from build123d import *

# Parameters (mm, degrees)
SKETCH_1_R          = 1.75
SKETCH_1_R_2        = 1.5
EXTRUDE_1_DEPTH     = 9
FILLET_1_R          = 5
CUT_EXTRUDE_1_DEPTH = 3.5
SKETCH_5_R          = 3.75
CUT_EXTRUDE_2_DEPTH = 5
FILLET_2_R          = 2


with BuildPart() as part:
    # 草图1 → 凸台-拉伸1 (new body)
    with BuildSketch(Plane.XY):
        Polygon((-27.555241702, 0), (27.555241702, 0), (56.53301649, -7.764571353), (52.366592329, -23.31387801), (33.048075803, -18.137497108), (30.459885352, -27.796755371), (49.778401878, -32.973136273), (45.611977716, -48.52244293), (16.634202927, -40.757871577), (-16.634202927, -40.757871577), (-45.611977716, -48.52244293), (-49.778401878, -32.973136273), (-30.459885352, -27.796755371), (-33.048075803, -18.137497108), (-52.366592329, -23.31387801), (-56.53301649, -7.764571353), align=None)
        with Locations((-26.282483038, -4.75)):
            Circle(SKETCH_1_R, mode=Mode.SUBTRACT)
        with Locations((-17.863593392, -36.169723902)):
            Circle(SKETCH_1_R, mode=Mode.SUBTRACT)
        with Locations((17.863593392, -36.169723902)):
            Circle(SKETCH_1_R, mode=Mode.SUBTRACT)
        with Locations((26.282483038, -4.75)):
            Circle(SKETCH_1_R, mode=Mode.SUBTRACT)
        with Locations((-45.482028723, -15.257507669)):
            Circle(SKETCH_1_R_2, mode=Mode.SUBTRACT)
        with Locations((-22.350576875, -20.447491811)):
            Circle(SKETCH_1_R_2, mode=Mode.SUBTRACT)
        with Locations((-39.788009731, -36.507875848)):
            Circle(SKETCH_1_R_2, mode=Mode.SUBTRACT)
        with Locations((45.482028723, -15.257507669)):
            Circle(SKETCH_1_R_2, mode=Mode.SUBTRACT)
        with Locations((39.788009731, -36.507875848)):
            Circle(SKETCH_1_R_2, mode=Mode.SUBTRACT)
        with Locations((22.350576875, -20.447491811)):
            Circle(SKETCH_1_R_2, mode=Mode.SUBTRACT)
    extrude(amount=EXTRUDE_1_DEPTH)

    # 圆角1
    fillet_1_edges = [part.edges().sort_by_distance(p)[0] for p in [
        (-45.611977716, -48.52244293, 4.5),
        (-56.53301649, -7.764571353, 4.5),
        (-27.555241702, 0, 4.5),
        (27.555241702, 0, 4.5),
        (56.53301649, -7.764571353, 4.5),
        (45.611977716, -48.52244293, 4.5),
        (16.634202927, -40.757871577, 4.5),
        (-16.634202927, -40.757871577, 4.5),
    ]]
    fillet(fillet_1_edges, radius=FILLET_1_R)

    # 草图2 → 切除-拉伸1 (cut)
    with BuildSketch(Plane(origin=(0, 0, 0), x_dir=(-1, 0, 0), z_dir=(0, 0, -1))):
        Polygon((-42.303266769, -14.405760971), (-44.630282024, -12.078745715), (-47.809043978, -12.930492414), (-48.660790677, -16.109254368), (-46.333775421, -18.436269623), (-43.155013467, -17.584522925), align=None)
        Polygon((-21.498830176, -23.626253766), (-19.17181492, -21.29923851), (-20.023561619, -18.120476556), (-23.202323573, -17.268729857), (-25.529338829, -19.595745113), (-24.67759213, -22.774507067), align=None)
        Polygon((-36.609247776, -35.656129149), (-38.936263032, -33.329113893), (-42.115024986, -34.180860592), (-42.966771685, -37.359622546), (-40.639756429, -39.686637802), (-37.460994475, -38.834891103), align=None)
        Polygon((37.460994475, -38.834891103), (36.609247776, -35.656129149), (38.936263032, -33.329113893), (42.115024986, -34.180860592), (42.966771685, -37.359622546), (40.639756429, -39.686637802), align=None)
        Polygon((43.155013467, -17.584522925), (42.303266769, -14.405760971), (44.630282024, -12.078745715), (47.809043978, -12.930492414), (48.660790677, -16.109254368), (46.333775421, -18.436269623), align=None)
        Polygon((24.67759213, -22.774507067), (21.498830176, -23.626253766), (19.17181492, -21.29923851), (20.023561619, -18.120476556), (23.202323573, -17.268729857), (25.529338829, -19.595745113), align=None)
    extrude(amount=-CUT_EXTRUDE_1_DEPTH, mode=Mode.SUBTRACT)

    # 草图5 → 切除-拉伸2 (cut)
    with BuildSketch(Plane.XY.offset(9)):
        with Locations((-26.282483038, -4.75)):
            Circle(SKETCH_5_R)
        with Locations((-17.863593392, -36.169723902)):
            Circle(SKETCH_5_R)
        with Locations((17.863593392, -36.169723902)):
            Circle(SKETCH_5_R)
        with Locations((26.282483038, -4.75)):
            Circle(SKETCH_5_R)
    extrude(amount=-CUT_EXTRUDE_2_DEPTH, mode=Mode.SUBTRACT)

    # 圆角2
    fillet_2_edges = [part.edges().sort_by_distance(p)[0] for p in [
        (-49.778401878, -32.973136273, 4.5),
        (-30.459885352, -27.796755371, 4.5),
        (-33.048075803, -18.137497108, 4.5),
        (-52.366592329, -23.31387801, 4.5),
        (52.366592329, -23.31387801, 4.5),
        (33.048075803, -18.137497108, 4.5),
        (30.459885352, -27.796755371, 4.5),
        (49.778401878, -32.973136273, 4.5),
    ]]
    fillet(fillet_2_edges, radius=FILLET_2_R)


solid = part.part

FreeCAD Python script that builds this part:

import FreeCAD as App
import Part
import Sketcher
Q = App.Units.Quantity


def edges_at(feature, points):
    """Names of the edges that pass closest to the given points."""
    edges = feature.Shape.Edges
    near = lambda p: min(range(len(edges)), key=lambda i: edges[i].distToShape(Part.Vertex(*p))[0])
    return sorted({f"Edge{near(p) + 1}" for p in points})

doc = App.newDocument("Part")
body = doc.addObject("PartDesign::Body", "Body")

# Sketch on XY plane
sketch1 = body.newObject("Sketcher::SketchObject", "Sketch")
sketch1.AttachmentSupport = (doc.getObject("XY_Plane"), [""])
sketch1.MapMode = "FlatFace"
sketch1.addGeometry(Part.LineSegment(App.Vector(27.6, 0, 0), App.Vector(-27.6, 0, 0)), False)
sketch1.addGeometry(Part.LineSegment(App.Vector(-27.6, 0, 0), App.Vector(-56.5, -7.8, 0)), False)
sketch1.addGeometry(Part.LineSegment(App.Vector(-56.5, -7.8, 0), App.Vector(-52.4, -23.3, 0)), False)
sketch1.addGeometry(Part.LineSegment(App.Vector(-52.4, -23.3, 0), App.Vector(-33, -18.1, 0)), False)
sketch1.addGeometry(Part.LineSegment(App.Vector(-33, -18.1, 0), App.Vector(-30.5, -27.8, 0)), False)
sketch1.addGeometry(Part.LineSegment(App.Vector(-30.5, -27.8, 0), App.Vector(-49.8, -33, 0)), False)
sketch1.addGeometry(Part.LineSegment(App.Vector(-49.8, -33, 0), App.Vector(-45.6, -48.5, 0)), False)
sketch1.addGeometry(Part.LineSegment(App.Vector(-45.6, -48.5, 0), App.Vector(-16.6, -40.8, 0)), False)
sketch1.addGeometry(Part.LineSegment(App.Vector(-16.6, -40.8, 0), App.Vector(16.6, -40.8, 0)), False)
sketch1.addGeometry(Part.LineSegment(App.Vector(16.6, -40.8, 0), App.Vector(45.6, -48.5, 0)), False)
sketch1.addGeometry(Part.LineSegment(App.Vector(45.6, -48.5, 0), App.Vector(49.8, -33, 0)), False)
sketch1.addGeometry(Part.LineSegment(App.Vector(49.8, -33, 0), App.Vector(30.5, -27.8, 0)), False)
sketch1.addGeometry(Part.LineSegment(App.Vector(30.5, -27.8, 0), App.Vector(33, -18.1, 0)), False)
sketch1.addGeometry(Part.LineSegment(App.Vector(33, -18.1, 0), App.Vector(52.4, -23.3, 0)), False)
sketch1.addGeometry(Part.LineSegment(App.Vector(52.4, -23.3, 0), App.Vector(56.5, -7.8, 0)), False)
sketch1.addGeometry(Part.LineSegment(App.Vector(56.5, -7.8, 0), App.Vector(27.6, 0, 0)), False)
sketch1.addGeometry(Part.Circle(App.Vector(39.8, -36.5, 0), App.Vector(0, 0, 1), 1.5), False)
sketch1.addGeometry(Part.Circle(App.Vector(17.9, -36.2, 0), App.Vector(0, 0, 1), 1.8), False)
sketch1.addGeometry(Part.Circle(App.Vector(-17.9, -36.2, 0), App.Vector(0, 0, 1), 1.8), False)
sketch1.addGeometry(Part.Circle(App.Vector(-39.8, -36.5, 0), App.Vector(0, 0, 1), 1.5), False)
sketch1.addGeometry(Part.Circle(App.Vector(45.5, -15.3, 0), App.Vector(0, 0, 1), 1.5), False)
sketch1.addGeometry(Part.Circle(App.Vector(22.4, -20.4, 0), App.Vector(0, 0, 1), 1.5), False)
sketch1.addGeometry(Part.Circle(App.Vector(26.3, -4.8, 0), App.Vector(0, 0, 1), 1.8), False)
sketch1.addGeometry(Part.Circle(App.Vector(-22.4, -20.4, 0), App.Vector(0, 0, 1), 1.5), False)
sketch1.addGeometry(Part.Circle(App.Vector(-45.5, -15.3, 0), App.Vector(0, 0, 1), 1.5), False)
sketch1.addGeometry(Part.Circle(App.Vector(-26.3, -4.8, 0), App.Vector(0, 0, 1), 1.8), False)
sketch1.addConstraint(Sketcher.Constraint("Coincident", 0, 2, 1, 1))
sketch1.addConstraint(Sketcher.Constraint("Coincident", 1, 2, 2, 1))
sketch1.addConstraint(Sketcher.Constraint("Coincident", 2, 2, 3, 1))
sketch1.addConstraint(Sketcher.Constraint("Coincident", 3, 2, 4, 1))
sketch1.addConstraint(Sketcher.Constraint("Coincident", 4, 2, 5, 1))
sketch1.addConstraint(Sketcher.Constraint("Coincident", 5, 2, 6, 1))
sketch1.addConstraint(Sketcher.Constraint("Coincident", 6, 2, 7, 1))
sketch1.addConstraint(Sketcher.Constraint("Coincident", 7, 2, 8, 1))
sketch1.addConstraint(Sketcher.Constraint("Coincident", 8, 2, 9, 1))
sketch1.addConstraint(Sketcher.Constraint("Coincident", 9, 2, 10, 1))
sketch1.addConstraint(Sketcher.Constraint("Coincident", 10, 2, 11, 1))
sketch1.addConstraint(Sketcher.Constraint("Coincident", 11, 2, 12, 1))
sketch1.addConstraint(Sketcher.Constraint("Coincident", 12, 2, 13, 1))
sketch1.addConstraint(Sketcher.Constraint("Coincident", 13, 2, 14, 1))
sketch1.addConstraint(Sketcher.Constraint("Coincident", 14, 2, 15, 1))
sketch1.addConstraint(Sketcher.Constraint("Coincident", 15, 2, 0, 1))
sketch1.addConstraint(Sketcher.Constraint("Horizontal", 0))
sketch1.addConstraint(Sketcher.Constraint("Horizontal", 8))
sketch1.addConstraint(Sketcher.Constraint("Equal", 17, 18))
sketch1.addConstraint(Sketcher.Constraint("Equal", 16, 19))
sketch1.addConstraint(Sketcher.Constraint("Equal", 19, 20))
sketch1.addConstraint(Sketcher.Constraint("Equal", 20, 21))
sketch1.addConstraint(Sketcher.Constraint("Equal", 18, 22))
sketch1.addConstraint(Sketcher.Constraint("Equal", 21, 23))
sketch1.addConstraint(Sketcher.Constraint("Equal", 23, 24))
sketch1.addConstraint(Sketcher.Constraint("Equal", 22, 25))
sketch1.addConstraint(Sketcher.Constraint("Symmetric", 0, 2, 15, 2, -1, 1))
sketch1.addConstraint(Sketcher.Constraint("Symmetric", 17, 3, 18, 3, -2))
sketch1.addConstraint(Sketcher.Constraint("Symmetric", 16, 3, 19, 3, -2))
sketch1.addConstraint(Sketcher.Constraint("Symmetric", 21, 3, 23, 3, -2))
sketch1.addConstraint(Sketcher.Constraint("Symmetric", 20, 3, 24, 3, -2))
sketch1.addConstraint(Sketcher.Constraint("Symmetric", 22, 3, 25, 3, -2))
sketch1.addConstraint(Sketcher.Constraint("Symmetric", 6, 2, 9, 2, -2))
sketch1.addConstraint(Sketcher.Constraint("Symmetric", 5, 2, 10, 2, -2))
sketch1.addConstraint(Sketcher.Constraint("Symmetric", 4, 2, 11, 2, -2))
sketch1.addConstraint(Sketcher.Constraint("Symmetric", 3, 2, 12, 2, -2))
sketch1.addConstraint(Sketcher.Constraint("Symmetric", 2, 2, 13, 2, -2))
sketch1.addConstraint(Sketcher.Constraint("Symmetric", 1, 2, 14, 2, -2))
sketch1.addConstraint(Sketcher.Constraint("Perpendicular", 1, 2))
sketch1.addConstraint(Sketcher.Constraint("Perpendicular", 2, 3))
sketch1.addConstraint(Sketcher.Constraint("Perpendicular", 3, 4))
sketch1.addConstraint(Sketcher.Constraint("Perpendicular", 4, 5))
sketch1.addConstraint(Sketcher.Constraint("Perpendicular", 5, 6))
sketch1.addConstraint(Sketcher.Constraint("Perpendicular", 6, 7))
sketch1.addConstraint(Sketcher.Constraint("Perpendicular", 9, 10))
sketch1.addConstraint(Sketcher.Constraint("Equal", 3, 5))
sketch1.addConstraint(Sketcher.Constraint("Equal", 2, 6))
sketch1.addConstraint(Sketcher.Constraint("Equal", 1, 7))
sketch1.addConstraint(Sketcher.Constraint("Diameter", 16, Q("3 mm")))
sketch1.addConstraint(Sketcher.Constraint("Diameter", 17, Q("3.5 mm")))
sketch1.addConstraint(Sketcher.Constraint("Angle", 1, Q("-165 deg")))
sketch1.addConstraint(Sketcher.Constraint("Distance", 1, Q("30 mm")))
sketch1.addConstraint(Sketcher.Constraint("Distance", 3, Q("20 mm")))
sketch1.addConstraint(Sketcher.Constraint("Distance", 4, Q("10 mm")))
sketch1.addConstraint(Sketcher.Constraint("DistanceY", 22, 3, -1, 1, Q("4.75 mm")))
sketch1.addConstraint(Sketcher.Constraint("DistanceX", 5, 2, -1, 1, Q("49.778402 mm")))
sketch1.addConstraint(Sketcher.Constraint("DistanceX", 3, 2, 23, 3, Q("10.697499 mm")))
sketch1.addConstraint(Sketcher.Constraint("DistanceX", 21, 3, 9, 2, Q("23.261401 mm")))
sketch1.addConstraint(Sketcher.Constraint("DistanceX", -1, 1, 16, 3, Q("39.78801 mm")))
sketch1.addConstraint(Sketcher.Constraint("DistanceX", -1, 1, 20, 3, Q("45.482029 mm")))
sketch1.addConstraint(Sketcher.Constraint("DistanceY", 21, 3, -1, 1, Q("20.447492 mm")))
sketch1.addConstraint(Sketcher.Constraint("DistanceY", 16, 3, 17, 3, Q("0.338152 mm")))
sketch1.addConstraint(Sketcher.Constraint("DistanceY", 16, 3, 20, 3, Q("21.250368 mm")))
sketch1.addConstraint(Sketcher.Constraint("DistanceX", 18, 3, 21, 3, Q("40.21417 mm")))
sketch1.addConstraint(Sketcher.Constraint("DistanceX", 17, 3, 22, 3, Q("8.41889 mm")))
sketch1.addConstraint(Sketcher.Constraint("DistanceY", 2, 2, 24, 3, Q("8.05637 mm")))
pad1 = body.newObject("PartDesign::Pad", "Pad")
pad1.Profile = sketch1
pad1.Length = 9
doc.recompute()

fillet = body.newObject("PartDesign::Fillet", "Fillet")
fillet.Base = (pad1, edges_at(pad1, [
    (-45.612, -48.522, 4.5),
    (-56.533, -7.765, 4.5),
    (-27.555, 0, 4.5),
    (27.555, 0, 4.5),
    (56.533, -7.765, 4.5),
    (45.612, -48.522, 4.5),
    (16.634, -40.758, 4.5),
    (-16.634, -40.758, 4.5),
]))
fillet.Radius = 5

# Sketch on XY plane
sketch2 = body.newObject("Sketcher::SketchObject", "Sketch001")
sketch2.AttachmentSupport = (doc.getObject("XY_Plane"), [""])
sketch2.MapMode = "FlatFace"
sketch2.addGeometry(Part.LineSegment(App.Vector(42.3, -14.4, 0), App.Vector(44.6, -12.1, 0)), False)
sketch2.addGeometry(Part.LineSegment(App.Vector(44.6, -12.1, 0), App.Vector(47.8, -12.9, 0)), False)
sketch2.addGeometry(Part.LineSegment(App.Vector(47.8, -12.9, 0), App.Vector(48.7, -16.1, 0)), False)
sketch2.addGeometry(Part.LineSegment(App.Vector(48.7, -16.1, 0), App.Vector(46.3, -18.4, 0)), False)
sketch2.addGeometry(Part.LineSegment(App.Vector(46.3, -18.4, 0), App.Vector(43.2, -17.6, 0)), False)
sketch2.addGeometry(Part.LineSegment(App.Vector(43.2, -17.6, 0), App.Vector(42.3, -14.4, 0)), False)
sketch2.addGeometry(Part.LineSegment(App.Vector(21.5, -23.6, 0), App.Vector(19.2, -21.3, 0)), False)
sketch2.addGeometry(Part.LineSegment(App.Vector(19.2, -21.3, 0), App.Vector(20, -18.1, 0)), False)
sketch2.addGeometry(Part.LineSegment(App.Vector(20, -18.1, 0), App.Vector(23.2, -17.3, 0)), False)
sketch2.addGeometry(Part.LineSegment(App.Vector(23.2, -17.3, 0), App.Vector(25.5, -19.6, 0)), False)
sketch2.addGeometry(Part.LineSegment(App.Vector(25.5, -19.6, 0), App.Vector(24.7, -22.8, 0)), False)
sketch2.addGeometry(Part.LineSegment(App.Vector(24.7, -22.8, 0), App.Vector(21.5, -23.6, 0)), False)
sketch2.addGeometry(Part.LineSegment(App.Vector(36.6, -35.7, 0), App.Vector(38.9, -33.3, 0)), False)
sketch2.addGeometry(Part.LineSegment(App.Vector(38.9, -33.3, 0), App.Vector(42.1, -34.2, 0)), False)
sketch2.addGeometry(Part.LineSegment(App.Vector(42.1, -34.2, 0), App.Vector(43, -37.4, 0)), False)
sketch2.addGeometry(Part.LineSegment(App.Vector(43, -37.4, 0), App.Vector(40.6, -39.7, 0)), False)
sketch2.addGeometry(Part.LineSegment(App.Vector(40.6, -39.7, 0), App.Vector(37.5, -38.8, 0)), False)
sketch2.addGeometry(Part.LineSegment(App.Vector(37.5, -38.8, 0), App.Vector(36.6, -35.7, 0)), False)
sketch2.addGeometry(Part.LineSegment(App.Vector(-36.6, -35.7, 0), App.Vector(-37.5, -38.8, 0)), False)
sketch2.addGeometry(Part.LineSegment(App.Vector(-37.5, -38.8, 0), App.Vector(-40.6, -39.7, 0)), False)
sketch2.addGeometry(Part.LineSegment(App.Vector(-40.6, -39.7, 0), App.Vector(-43, -37.4, 0)), False)
sketch2.addGeometry(Part.LineSegment(App.Vector(-43, -37.4, 0), App.Vector(-42.1, -34.2, 0)), False)
sketch2.addGeometry(Part.LineSegment(App.Vector(-42.1, -34.2, 0), App.Vector(-38.9, -33.3, 0)), False)
sketch2.addGeometry(Part.LineSegment(App.Vector(-38.9, -33.3, 0), App.Vector(-36.6, -35.7, 0)), False)
sketch2.addGeometry(Part.LineSegment(App.Vector(-42.3, -14.4, 0), App.Vector(-43.2, -17.6, 0)), False)
sketch2.addGeometry(Part.LineSegment(App.Vector(-43.2, -17.6, 0), App.Vector(-46.3, -18.4, 0)), False)
sketch2.addGeometry(Part.LineSegment(App.Vector(-46.3, -18.4, 0), App.Vector(-48.7, -16.1, 0)), False)
sketch2.addGeometry(Part.LineSegment(App.Vector(-48.7, -16.1, 0), App.Vector(-47.8, -12.9, 0)), False)
sketch2.addGeometry(Part.LineSegment(App.Vector(-47.8, -12.9, 0), App.Vector(-44.6, -12.1, 0)), False)
sketch2.addGeometry(Part.LineSegment(App.Vector(-44.6, -12.1, 0), App.Vector(-42.3, -14.4, 0)), False)
sketch2.addGeometry(Part.LineSegment(App.Vector(-21.5, -23.6, 0), App.Vector(-24.7, -22.8, 0)), False)
sketch2.addGeometry(Part.LineSegment(App.Vector(-24.7, -22.8, 0), App.Vector(-25.5, -19.6, 0)), False)
sketch2.addGeometry(Part.LineSegment(App.Vector(-25.5, -19.6, 0), App.Vector(-23.2, -17.3, 0)), False)
sketch2.addGeometry(Part.LineSegment(App.Vector(-23.2, -17.3, 0), App.Vector(-20, -18.1, 0)), False)
sketch2.addGeometry(Part.LineSegment(App.Vector(-20, -18.1, 0), App.Vector(-19.2, -21.3, 0)), False)
sketch2.addGeometry(Part.LineSegment(App.Vector(-19.2, -21.3, 0), App.Vector(-21.5, -23.6, 0)), False)
sketch2.addConstraint(Sketcher.Constraint("Coincident", 0, 2, 1, 1))
sketch2.addConstraint(Sketcher.Constraint("Coincident", 1, 2, 2, 1))
sketch2.addConstraint(Sketcher.Constraint("Coincident", 2, 2, 3, 1))
sketch2.addConstraint(Sketcher.Constraint("Coincident", 3, 2, 4, 1))
sketch2.addConstraint(Sketcher.Constraint("Coincident", 4, 2, 5, 1))
sketch2.addConstraint(Sketcher.Constraint("Coincident", 5, 2, 0, 1))
sketch2.addConstraint(Sketcher.Constraint("Coincident", 6, 2, 7, 1))
sketch2.addConstraint(Sketcher.Constraint("Coincident", 7, 2, 8, 1))
sketch2.addConstraint(Sketcher.Constraint("Coincident", 8, 2, 9, 1))
sketch2.addConstraint(Sketcher.Constraint("Coincident", 9, 2, 10, 1))
sketch2.addConstraint(Sketcher.Constraint("Coincident", 10, 2, 11, 1))
sketch2.addConstraint(Sketcher.Constraint("Coincident", 11, 2, 6, 1))
sketch2.addConstraint(Sketcher.Constraint("Coincident", 12, 2, 13, 1))
sketch2.addConstraint(Sketcher.Constraint("Coincident", 13, 2, 14, 1))
sketch2.addConstraint(Sketcher.Constraint("Coincident", 14, 2, 15, 1))
sketch2.addConstraint(Sketcher.Constraint("Coincident", 15, 2, 16, 1))
sketch2.addConstraint(Sketcher.Constraint("Coincident", 16, 2, 17, 1))
sketch2.addConstraint(Sketcher.Constraint("Coincident", 17, 2, 12, 1))
sketch2.addConstraint(Sketcher.Constraint("Coincident", 18, 2, 19, 1))
sketch2.addConstraint(Sketcher.Constraint("Coincident", 19, 2, 20, 1))
sketch2.addConstraint(Sketcher.Constraint("Coincident", 20, 2, 21, 1))
sketch2.addConstraint(Sketcher.Constraint("Coincident", 21, 2, 22, 1))
sketch2.addConstraint(Sketcher.Constraint("Coincident", 22, 2, 23, 1))
sketch2.addConstraint(Sketcher.Constraint("Coincident", 23, 2, 18, 1))
sketch2.addConstraint(Sketcher.Constraint("Coincident", 24, 2, 25, 1))
sketch2.addConstraint(Sketcher.Constraint("Coincident", 25, 2, 26, 1))
sketch2.addConstraint(Sketcher.Constraint("Coincident", 26, 2, 27, 1))
sketch2.addConstraint(Sketcher.Constraint("Coincident", 27, 2, 28, 1))
sketch2.addConstraint(Sketcher.Constraint("Coincident", 28, 2, 29, 1))
sketch2.addConstraint(Sketcher.Constraint("Coincident", 29, 2, 24, 1))
sketch2.addConstraint(Sketcher.Constraint("Coincident", 30, 2, 31, 1))
sketch2.addConstraint(Sketcher.Constraint("Coincident", 31, 2, 32, 1))
sketch2.addConstraint(Sketcher.Constraint("Coincident", 32, 2, 33, 1))
sketch2.addConstraint(Sketcher.Constraint("Coincident", 33, 2, 34, 1))
sketch2.addConstraint(Sketcher.Constraint("Coincident", 34, 2, 35, 1))
sketch2.addConstraint(Sketcher.Constraint("Coincident", 35, 2, 30, 1))
sketch2.addConstraint(Sketcher.Constraint("Symmetric", 16, 2, 18, 2, -2))
sketch2.addConstraint(Sketcher.Constraint("Symmetric", 15, 2, 19, 2, -2))
sketch2.addConstraint(Sketcher.Constraint("Symmetric", 14, 2, 20, 2, -2))
sketch2.addConstraint(Sketcher.Constraint("Symmetric", 13, 2, 21, 2, -2))
sketch2.addConstraint(Sketcher.Constraint("Symmetric", 12, 2, 22, 2, -2))
sketch2.addConstraint(Sketcher.Constraint("Symmetric", 17, 2, 23, 2, -2))
sketch2.addConstraint(Sketcher.Constraint("Symmetric", 4, 2, 24, 2, -2))
sketch2.addConstraint(Sketcher.Constraint("Symmetric", 3, 2, 25, 2, -2))
sketch2.addConstraint(Sketcher.Constraint("Symmetric", 2, 2, 26, 2, -2))
sketch2.addConstraint(Sketcher.Constraint("Symmetric", 1, 2, 27, 2, -2))
sketch2.addConstraint(Sketcher.Constraint("Symmetric", 0, 2, 28, 2, -2))
sketch2.addConstraint(Sketcher.Constraint("Symmetric", 5, 2, 29, 2, -2))
sketch2.addConstraint(Sketcher.Constraint("Symmetric", 10, 2, 30, 2, -2))
sketch2.addConstraint(Sketcher.Constraint("Symmetric", 9, 2, 31, 2, -2))
sketch2.addConstraint(Sketcher.Constraint("Symmetric", 8, 2, 32, 2, -2))
sketch2.addConstraint(Sketcher.Constraint("Symmetric", 7, 2, 33, 2, -2))
sketch2.addConstraint(Sketcher.Constraint("Symmetric", 6, 2, 34, 2, -2))
sketch2.addConstraint(Sketcher.Constraint("Symmetric", 11, 2, 35, 2, -2))
sketch2.addConstraint(Sketcher.Constraint("Parallel", 0, 3))
sketch2.addConstraint(Sketcher.Constraint("Parallel", 1, 4))
sketch2.addConstraint(Sketcher.Constraint("Parallel", 2, 5))
sketch2.addConstraint(Sketcher.Constraint("Perpendicular", 3, 6))
sketch2.addConstraint(Sketcher.Constraint("Perpendicular", 4, 7))
sketch2.addConstraint(Sketcher.Constraint("Perpendicular", 5, 8))
sketch2.addConstraint(Sketcher.Constraint("Parallel", 6, 9))
sketch2.addConstraint(Sketcher.Constraint("Parallel", 7, 10))
sketch2.addConstraint(Sketcher.Constraint("Parallel", 8, 11))
sketch2.addConstraint(Sketcher.Constraint("Perpendicular", 9, 12))
sketch2.addConstraint(Sketcher.Constraint("Perpendicular", 10, 13))
sketch2.addConstraint(Sketcher.Constraint("Perpendicular", 11, 14))
sketch2.addConstraint(Sketcher.Constraint("Parallel", 12, 15))
sketch2.addConstraint(Sketcher.Constraint("Parallel", 13, 16))
sketch2.addConstraint(Sketcher.Constraint("Parallel", 14, 17))
sketch2.addConstraint(Sketcher.Constraint("Perpendicular", 16, 18))
sketch2.addConstraint(Sketcher.Constraint("Perpendicular", 15, 20))
sketch2.addConstraint(Sketcher.Constraint("Equal", 0, 1))
sketch2.addConstraint(Sketcher.Constraint("Equal", 1, 2))
sketch2.addConstraint(Sketcher.Constraint("Equal", 2, 3))
sketch2.addConstraint(Sketcher.Constraint("Equal", 5, 6))
sketch2.addConstraint(Sketcher.Constraint("Equal", 6, 7))
sketch2.addConstraint(Sketcher.Constraint("Equal", 7, 8))
sketch2.addConstraint(Sketcher.Constraint("Equal", 8, 9))
sketch2.addConstraint(Sketcher.Constraint("Equal", 11, 12))
sketch2.addConstraint(Sketcher.Constraint("Equal", 12, 13))
sketch2.addConstraint(Sketcher.Constraint("Equal", 13, 14))
sketch2.addConstraint(Sketcher.Constraint("Equal", 14, 15))
sketch2.addConstraint(Sketcher.Constraint("Angle", 1, Q("-15 deg")))
sketch2.addConstraint(Sketcher.Constraint("DistanceX", 6, 2, 4, 2, Q("23.983199 mm")))
sketch2.addConstraint(Sketcher.Constraint("DistanceY", 13, 2, 5, 2, Q("19.7751 mm")))
sketch2.addConstraint(Sketcher.Constraint("DistanceY", 19, 2, 6, 2, Q("18.387399 mm")))
sketch2.addConstraint(Sketcher.Constraint("DistanceX", 20, 2, 11, 2, Q("64.465602 mm")))
sketch2.addConstraint(Sketcher.Constraint("DistanceX", -1, 1, 2, 2, Q("48.660791 mm")))
sketch2.addConstraint(Sketcher.Constraint("DistanceY", 3, 2, -1, 1, Q("18.43627 mm")))
sketch2.addConstraint(Sketcher.Constraint("DistanceY", 5, 2, -1, 1, Q("14.405761 mm")))
pocket1 = body.newObject("PartDesign::Pocket", "Pocket")
pocket1.Profile = sketch2
pocket1.Length = 3.5
pocket1.Reversed = True

# Sketch on XY plane
sketch3 = body.newObject("Sketcher::SketchObject", "Sketch002")
sketch3.AttachmentSupport = (doc.getObject("XY_Plane"), [""])
sketch3.MapMode = "FlatFace"
sketch3.AttachmentOffset = App.Placement(App.Vector(0, 0, 9), App.Rotation())
sketch3.addGeometry(Part.Circle(App.Vector(-26.3, -4.8, 0), App.Vector(0, 0, 1), 3.8), False)
sketch3.addGeometry(Part.Circle(App.Vector(-17.9, -36.2, 0), App.Vector(0, 0, 1), 3.8), False)
sketch3.addGeometry(Part.Circle(App.Vector(17.9, -36.2, 0), App.Vector(0, 0, 1), 3.8), False)
sketch3.addGeometry(Part.Circle(App.Vector(26.3, -4.8, 0), App.Vector(0, 0, 1), 3.8), False)
sketch3.addConstraint(Sketcher.Constraint("Equal", 0, 1))
sketch3.addConstraint(Sketcher.Constraint("Equal", 1, 2))
sketch3.addConstraint(Sketcher.Constraint("Equal", 2, 3))
sketch3.addConstraint(Sketcher.Constraint("Symmetric", 1, 3, 2, 3, -2))
sketch3.addConstraint(Sketcher.Constraint("Symmetric", 0, 3, 3, 3, -2))
sketch3.addConstraint(Sketcher.Constraint("Diameter", 0, Q("7.5 mm")))
sketch3.addConstraint(Sketcher.Constraint("DistanceY", 0, 3, -1, 1, Q("4.75 mm")))
sketch3.addConstraint(Sketcher.Constraint("DistanceX", 0, 3, 1, 3, Q("8.41889 mm")))
sketch3.addConstraint(Sketcher.Constraint("DistanceX", 0, 3, -1, 1, Q("26.282483 mm")))
sketch3.addConstraint(Sketcher.Constraint("DistanceY", 1, 3, -1, 1, Q("36.169724 mm")))
pocket2 = body.newObject("PartDesign::Pocket", "Pocket001")
pocket2.Profile = sketch3
pocket2.Length = 5
doc.recompute()

fillet2 = body.newObject("PartDesign::Fillet", "Fillet001")
fillet2.Base = (pocket2, edges_at(pocket2, [
    (-49.778, -32.973, 4.5),
    (-30.46, -27.797, 4.5),
    (-33.048, -18.137, 4.5),
    (-52.367, -23.314, 4.5),
    (52.367, -23.314, 4.5),
    (33.048, -18.137, 4.5),
    (30.46, -27.797, 4.5),
    (49.778, -32.973, 4.5),
]))
fillet2.Radius = 2

doc.recompute()
